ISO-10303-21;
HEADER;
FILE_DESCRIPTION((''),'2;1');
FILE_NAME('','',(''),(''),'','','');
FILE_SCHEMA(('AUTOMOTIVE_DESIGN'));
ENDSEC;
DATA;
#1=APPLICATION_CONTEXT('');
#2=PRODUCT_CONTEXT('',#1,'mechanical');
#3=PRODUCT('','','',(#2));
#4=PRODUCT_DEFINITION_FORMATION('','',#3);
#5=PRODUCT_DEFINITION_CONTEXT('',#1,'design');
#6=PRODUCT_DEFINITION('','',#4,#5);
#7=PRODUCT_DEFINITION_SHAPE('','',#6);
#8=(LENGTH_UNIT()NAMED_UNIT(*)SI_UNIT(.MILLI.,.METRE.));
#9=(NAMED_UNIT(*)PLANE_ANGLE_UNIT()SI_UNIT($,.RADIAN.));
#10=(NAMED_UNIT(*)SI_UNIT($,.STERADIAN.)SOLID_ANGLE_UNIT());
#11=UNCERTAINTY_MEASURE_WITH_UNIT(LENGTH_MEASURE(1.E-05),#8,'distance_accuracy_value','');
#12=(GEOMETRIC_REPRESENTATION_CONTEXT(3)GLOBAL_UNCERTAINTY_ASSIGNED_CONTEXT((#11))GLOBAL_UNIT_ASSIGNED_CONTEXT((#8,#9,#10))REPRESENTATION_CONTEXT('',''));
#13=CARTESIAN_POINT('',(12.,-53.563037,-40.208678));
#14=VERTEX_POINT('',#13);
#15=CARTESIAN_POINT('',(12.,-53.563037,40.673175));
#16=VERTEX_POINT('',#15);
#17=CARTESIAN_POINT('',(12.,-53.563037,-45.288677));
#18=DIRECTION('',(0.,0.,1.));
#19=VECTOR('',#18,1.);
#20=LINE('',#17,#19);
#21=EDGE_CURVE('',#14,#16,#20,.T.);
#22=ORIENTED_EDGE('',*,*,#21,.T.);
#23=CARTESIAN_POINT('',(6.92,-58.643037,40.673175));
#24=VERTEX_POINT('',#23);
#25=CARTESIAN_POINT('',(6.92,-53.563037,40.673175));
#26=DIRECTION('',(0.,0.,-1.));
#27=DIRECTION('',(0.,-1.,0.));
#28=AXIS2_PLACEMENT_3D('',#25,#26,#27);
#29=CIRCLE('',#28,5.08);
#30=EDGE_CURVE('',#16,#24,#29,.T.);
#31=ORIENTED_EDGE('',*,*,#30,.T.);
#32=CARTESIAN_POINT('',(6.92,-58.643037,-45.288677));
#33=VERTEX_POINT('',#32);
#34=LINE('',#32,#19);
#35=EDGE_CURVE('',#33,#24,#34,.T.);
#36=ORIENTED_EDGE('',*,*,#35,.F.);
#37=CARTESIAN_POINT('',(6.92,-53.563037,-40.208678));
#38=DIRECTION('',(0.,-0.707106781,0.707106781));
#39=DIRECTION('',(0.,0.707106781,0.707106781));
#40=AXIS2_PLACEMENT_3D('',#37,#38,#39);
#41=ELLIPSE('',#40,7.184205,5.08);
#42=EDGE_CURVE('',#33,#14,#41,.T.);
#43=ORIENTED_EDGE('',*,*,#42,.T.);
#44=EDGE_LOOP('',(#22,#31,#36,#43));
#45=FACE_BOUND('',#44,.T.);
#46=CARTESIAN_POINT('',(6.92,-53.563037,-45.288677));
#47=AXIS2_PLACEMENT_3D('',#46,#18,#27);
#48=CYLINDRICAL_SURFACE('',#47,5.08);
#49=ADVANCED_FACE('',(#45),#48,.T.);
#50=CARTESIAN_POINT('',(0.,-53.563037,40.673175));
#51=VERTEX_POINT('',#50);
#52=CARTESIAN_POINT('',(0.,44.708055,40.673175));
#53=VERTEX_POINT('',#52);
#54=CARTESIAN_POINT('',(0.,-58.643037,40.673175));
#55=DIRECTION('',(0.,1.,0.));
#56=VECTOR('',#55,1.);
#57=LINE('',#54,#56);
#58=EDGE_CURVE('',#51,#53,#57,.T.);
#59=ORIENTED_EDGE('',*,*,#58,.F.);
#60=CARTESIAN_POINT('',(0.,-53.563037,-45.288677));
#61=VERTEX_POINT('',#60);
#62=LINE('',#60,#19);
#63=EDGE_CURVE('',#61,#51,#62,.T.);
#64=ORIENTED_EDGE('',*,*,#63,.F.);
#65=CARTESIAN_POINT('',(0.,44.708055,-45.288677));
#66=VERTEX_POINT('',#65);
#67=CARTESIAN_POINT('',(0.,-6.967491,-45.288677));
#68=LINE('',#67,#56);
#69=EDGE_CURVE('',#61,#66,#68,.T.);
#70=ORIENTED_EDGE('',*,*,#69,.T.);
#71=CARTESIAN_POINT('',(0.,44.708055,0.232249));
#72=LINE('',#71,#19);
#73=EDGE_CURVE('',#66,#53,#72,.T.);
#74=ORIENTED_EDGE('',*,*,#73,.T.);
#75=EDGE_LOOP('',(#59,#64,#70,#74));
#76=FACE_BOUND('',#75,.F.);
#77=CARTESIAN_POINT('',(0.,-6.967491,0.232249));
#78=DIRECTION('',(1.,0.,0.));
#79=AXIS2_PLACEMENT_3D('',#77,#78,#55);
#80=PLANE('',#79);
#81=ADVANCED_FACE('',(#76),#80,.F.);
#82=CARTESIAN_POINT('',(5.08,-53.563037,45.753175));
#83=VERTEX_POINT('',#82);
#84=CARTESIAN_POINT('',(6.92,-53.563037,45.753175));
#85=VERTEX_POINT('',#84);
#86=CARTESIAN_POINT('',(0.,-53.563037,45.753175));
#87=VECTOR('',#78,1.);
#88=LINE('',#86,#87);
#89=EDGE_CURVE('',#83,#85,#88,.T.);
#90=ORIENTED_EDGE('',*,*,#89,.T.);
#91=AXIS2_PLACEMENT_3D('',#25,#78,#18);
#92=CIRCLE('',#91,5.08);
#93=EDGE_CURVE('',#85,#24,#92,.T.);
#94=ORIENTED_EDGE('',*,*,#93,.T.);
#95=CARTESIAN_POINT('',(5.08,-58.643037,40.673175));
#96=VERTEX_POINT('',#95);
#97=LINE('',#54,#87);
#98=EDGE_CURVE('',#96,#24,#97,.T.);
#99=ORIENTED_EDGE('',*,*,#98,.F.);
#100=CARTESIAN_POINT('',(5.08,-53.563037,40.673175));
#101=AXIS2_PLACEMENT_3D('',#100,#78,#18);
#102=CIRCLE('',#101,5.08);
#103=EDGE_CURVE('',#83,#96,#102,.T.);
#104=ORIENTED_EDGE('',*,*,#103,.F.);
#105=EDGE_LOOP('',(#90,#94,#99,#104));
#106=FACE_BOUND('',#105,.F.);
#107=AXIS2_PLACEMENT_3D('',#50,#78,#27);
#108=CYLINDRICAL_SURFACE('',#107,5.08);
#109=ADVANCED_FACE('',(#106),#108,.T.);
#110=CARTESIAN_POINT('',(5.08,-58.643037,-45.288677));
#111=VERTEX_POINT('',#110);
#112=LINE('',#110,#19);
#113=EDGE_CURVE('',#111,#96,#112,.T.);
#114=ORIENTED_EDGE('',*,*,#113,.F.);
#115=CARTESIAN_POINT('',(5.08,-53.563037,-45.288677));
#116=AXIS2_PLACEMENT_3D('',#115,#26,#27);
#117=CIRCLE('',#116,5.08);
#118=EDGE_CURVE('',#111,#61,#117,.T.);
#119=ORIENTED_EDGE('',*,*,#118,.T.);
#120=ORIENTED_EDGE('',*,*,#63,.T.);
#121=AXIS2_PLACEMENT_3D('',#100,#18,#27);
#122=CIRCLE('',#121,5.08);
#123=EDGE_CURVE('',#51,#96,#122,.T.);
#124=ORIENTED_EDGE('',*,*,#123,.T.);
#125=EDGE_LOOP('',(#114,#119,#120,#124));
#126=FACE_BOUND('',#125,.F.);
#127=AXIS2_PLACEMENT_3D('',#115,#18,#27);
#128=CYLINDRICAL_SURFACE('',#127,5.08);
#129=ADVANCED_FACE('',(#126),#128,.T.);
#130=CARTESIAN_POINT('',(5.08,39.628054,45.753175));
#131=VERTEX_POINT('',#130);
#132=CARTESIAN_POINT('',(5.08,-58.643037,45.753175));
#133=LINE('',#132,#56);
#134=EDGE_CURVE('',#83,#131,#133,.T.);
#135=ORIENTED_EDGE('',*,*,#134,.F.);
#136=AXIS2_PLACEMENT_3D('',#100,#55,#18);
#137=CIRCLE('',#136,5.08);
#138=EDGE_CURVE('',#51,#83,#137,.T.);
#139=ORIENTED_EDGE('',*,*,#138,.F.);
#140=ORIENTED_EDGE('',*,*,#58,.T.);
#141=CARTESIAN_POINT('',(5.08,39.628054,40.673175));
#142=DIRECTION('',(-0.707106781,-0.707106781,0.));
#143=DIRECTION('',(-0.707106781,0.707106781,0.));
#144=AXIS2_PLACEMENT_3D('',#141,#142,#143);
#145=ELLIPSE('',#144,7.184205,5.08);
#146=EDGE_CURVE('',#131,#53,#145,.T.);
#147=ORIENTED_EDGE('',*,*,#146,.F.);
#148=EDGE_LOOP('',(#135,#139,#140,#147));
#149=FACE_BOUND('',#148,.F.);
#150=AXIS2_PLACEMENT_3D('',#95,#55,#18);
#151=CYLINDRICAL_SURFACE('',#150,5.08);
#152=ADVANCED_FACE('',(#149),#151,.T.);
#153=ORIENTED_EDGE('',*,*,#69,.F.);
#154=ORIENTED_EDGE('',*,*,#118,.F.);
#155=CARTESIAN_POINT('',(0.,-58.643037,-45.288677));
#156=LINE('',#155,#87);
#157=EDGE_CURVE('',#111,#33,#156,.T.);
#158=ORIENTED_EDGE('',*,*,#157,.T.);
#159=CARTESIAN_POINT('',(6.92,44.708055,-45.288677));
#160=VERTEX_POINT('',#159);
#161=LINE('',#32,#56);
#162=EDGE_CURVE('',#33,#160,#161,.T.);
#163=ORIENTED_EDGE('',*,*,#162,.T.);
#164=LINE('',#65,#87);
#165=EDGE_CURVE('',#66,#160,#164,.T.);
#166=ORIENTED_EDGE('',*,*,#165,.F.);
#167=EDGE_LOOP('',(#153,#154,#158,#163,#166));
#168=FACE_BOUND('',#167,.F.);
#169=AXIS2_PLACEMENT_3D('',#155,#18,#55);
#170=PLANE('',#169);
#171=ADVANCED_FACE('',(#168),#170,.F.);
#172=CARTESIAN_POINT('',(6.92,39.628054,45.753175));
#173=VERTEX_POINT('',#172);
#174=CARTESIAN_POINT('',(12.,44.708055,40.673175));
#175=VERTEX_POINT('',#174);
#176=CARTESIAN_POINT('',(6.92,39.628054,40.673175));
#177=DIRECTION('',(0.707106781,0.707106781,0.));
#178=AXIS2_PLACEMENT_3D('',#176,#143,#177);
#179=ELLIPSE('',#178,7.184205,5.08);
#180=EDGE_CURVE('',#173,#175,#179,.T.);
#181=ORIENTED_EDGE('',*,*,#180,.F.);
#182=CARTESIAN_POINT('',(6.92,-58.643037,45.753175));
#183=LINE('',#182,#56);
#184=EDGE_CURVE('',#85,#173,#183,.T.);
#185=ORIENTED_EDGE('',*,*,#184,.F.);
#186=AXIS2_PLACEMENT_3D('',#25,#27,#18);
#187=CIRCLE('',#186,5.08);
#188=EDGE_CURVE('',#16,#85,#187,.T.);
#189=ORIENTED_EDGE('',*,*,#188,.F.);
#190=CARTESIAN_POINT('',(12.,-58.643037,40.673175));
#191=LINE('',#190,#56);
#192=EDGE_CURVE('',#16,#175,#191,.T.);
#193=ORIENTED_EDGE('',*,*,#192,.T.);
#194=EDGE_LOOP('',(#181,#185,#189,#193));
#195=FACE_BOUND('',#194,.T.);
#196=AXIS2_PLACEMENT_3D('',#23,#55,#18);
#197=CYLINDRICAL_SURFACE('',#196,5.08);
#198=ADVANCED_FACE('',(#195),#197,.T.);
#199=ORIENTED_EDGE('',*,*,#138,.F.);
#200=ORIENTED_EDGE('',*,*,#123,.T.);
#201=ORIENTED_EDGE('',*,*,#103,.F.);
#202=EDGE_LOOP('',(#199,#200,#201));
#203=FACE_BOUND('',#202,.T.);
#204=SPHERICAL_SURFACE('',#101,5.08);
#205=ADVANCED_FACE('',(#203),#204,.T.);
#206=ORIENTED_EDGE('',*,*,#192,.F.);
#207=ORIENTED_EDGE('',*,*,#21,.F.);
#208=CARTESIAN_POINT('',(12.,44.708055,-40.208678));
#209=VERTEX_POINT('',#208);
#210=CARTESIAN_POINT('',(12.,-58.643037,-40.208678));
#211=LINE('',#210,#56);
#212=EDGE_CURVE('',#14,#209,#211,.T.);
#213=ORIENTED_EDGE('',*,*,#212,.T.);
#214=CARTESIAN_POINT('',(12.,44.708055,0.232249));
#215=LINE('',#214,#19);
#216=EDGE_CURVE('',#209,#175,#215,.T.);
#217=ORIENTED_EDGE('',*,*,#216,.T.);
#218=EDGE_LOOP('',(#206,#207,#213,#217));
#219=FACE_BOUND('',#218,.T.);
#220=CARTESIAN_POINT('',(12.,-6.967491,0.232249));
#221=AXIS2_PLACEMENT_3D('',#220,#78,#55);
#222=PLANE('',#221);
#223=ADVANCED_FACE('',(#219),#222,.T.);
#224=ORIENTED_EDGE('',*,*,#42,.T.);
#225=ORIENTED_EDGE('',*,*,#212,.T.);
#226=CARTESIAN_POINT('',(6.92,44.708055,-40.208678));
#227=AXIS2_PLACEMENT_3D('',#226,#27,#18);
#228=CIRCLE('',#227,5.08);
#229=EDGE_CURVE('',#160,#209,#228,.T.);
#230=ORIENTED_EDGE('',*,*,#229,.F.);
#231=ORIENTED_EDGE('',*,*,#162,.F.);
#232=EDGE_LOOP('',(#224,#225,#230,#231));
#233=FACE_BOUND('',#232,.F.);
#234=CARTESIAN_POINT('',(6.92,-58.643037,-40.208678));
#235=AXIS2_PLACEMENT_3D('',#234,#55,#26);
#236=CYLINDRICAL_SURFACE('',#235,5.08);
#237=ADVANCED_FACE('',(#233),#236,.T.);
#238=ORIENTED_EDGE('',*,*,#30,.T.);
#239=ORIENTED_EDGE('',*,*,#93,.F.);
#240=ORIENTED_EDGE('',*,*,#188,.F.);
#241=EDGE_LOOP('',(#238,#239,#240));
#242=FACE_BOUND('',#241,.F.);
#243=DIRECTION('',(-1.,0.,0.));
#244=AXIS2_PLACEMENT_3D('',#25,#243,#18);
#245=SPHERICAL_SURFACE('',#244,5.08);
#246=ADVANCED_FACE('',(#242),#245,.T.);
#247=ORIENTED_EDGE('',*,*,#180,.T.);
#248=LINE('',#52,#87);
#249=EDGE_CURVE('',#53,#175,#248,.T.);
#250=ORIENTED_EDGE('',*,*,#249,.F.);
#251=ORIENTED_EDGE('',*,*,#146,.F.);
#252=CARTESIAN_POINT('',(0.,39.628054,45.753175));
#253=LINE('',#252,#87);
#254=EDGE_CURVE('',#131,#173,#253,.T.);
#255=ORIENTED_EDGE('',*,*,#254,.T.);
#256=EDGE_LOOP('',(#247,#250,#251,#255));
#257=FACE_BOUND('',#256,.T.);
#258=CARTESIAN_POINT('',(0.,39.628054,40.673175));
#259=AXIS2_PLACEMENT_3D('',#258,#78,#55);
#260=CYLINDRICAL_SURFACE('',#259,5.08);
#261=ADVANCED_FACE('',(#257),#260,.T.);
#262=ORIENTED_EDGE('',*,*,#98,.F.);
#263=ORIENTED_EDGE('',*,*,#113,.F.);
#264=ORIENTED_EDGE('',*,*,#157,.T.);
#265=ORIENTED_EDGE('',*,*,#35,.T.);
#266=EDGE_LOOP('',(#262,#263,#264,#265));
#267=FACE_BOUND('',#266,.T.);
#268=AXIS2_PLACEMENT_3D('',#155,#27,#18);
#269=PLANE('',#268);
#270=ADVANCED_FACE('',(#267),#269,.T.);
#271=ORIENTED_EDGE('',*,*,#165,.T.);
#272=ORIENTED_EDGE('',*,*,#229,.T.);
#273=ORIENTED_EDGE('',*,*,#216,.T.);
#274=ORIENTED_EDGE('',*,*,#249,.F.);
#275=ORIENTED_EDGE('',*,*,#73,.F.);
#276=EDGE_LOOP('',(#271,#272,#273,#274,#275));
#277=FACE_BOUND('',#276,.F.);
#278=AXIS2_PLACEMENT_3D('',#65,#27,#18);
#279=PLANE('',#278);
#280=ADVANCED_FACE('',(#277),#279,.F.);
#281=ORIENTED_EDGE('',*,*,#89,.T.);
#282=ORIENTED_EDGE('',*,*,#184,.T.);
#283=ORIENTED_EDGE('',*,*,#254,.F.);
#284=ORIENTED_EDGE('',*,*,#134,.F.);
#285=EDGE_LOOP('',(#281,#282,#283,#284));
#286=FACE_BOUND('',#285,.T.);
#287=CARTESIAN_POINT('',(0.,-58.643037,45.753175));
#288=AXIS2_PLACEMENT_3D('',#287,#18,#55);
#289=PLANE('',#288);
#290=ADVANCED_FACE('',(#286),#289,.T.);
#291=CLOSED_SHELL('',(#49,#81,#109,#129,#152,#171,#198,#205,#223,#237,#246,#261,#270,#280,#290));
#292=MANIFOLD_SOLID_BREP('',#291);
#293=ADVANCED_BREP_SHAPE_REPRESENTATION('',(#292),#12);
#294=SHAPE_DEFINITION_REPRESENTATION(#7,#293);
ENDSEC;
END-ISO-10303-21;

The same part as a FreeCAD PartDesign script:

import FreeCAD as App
import Part
import Sketcher
from FreeCAD import Vector
Q = App.Units.Quantity


def edges_at(feature, points):
    """Names of the edges that pass closest to the given points."""
    edges = feature.Shape.Edges
    near = lambda p: min(range(len(edges)), key=lambda i: edges[i].distToShape(Part.Vertex(*p))[0])
    return sorted({f"Edge{near(p) + 1}" for p in points})

doc = App.newDocument("Part")
body = doc.addObject("PartDesign::Body", "Body")

# Sketch on YZ plane
sketch1 = doc.addObject("Sketcher::SketchObject", "Sketch")
body.addObject(sketch1)
sketch1.AttachmentSupport = (doc.YZ_Plane, [""])
sketch1.MapMode = "FlatFace"
sketch1.addGeometry(Part.LineSegment(Vector(-58.643037, 45.753175, 0), Vector(-58.643037, -45.288677, 0)), False)
sketch1.addGeometry(Part.LineSegment(Vector(-58.643037, -45.288677, 0), Vector(44.708055, -45.288677, 0)), False)
sketch1.addGeometry(Part.LineSegment(Vector(44.708055, -45.288677, 0), Vector(44.708055, 45.753175, 0)), False)
sketch1.addGeometry(Part.LineSegment(Vector(44.708055, 45.753175, 0), Vector(-58.643037, 45.753175, 0)), False)
sketch1.addConstraint(Sketcher.Constraint("Coincident", 0, 2, 1, 1))
sketch1.addConstraint(Sketcher.Constraint("Coincident", 1, 2, 2, 1))
sketch1.addConstraint(Sketcher.Constraint("Coincident", 2, 2, 3, 1))
sketch1.addConstraint(Sketcher.Constraint("Coincident", 3, 2, 0, 1))
sketch1.addConstraint(Sketcher.Constraint("Vertical", 0))
sketch1.addConstraint(Sketcher.Constraint("Horizontal", 1))
sketch1.addConstraint(Sketcher.Constraint("Vertical", 2))
sketch1.addConstraint(Sketcher.Constraint("Horizontal", 3))
sketch1.addConstraint(Sketcher.Constraint("DistanceX", 1, 1, 1, 2, Q("103.351091 mm")))
sketch1.addConstraint(Sketcher.Constraint("DistanceY", 0, 2, 0, 1, Q("91.041853 mm")))
sketch1.addConstraint(Sketcher.Constraint("DistanceX", 0, 2, -1, 1, Q("58.643037 mm")))
sketch1.addConstraint(Sketcher.Constraint("DistanceY", 0, 2, -1, 1, Q("45.288677 mm")))
pad1 = doc.addObject("PartDesign::Pad", "Pad")
body.addObject(pad1)
pad1.Profile = sketch1
pad1.Length = 12
doc.recompute()

fillet = doc.addObject("PartDesign::Fillet", "Fillet")
body.addObject(fillet)
fillet.Base = (pad1, edges_at(pad1, [
    (6, -58.643, 45.753),
    (12, -6.967, 45.753),
    (0, -6.967, 45.753),
    (6, 44.708, 45.753),
    (12, -58.643, 0.232),
    (0, -58.643, 0.232),
    (12, -6.967, -45.289),
]))
fillet.Radius = 5.08

doc.recompute()
